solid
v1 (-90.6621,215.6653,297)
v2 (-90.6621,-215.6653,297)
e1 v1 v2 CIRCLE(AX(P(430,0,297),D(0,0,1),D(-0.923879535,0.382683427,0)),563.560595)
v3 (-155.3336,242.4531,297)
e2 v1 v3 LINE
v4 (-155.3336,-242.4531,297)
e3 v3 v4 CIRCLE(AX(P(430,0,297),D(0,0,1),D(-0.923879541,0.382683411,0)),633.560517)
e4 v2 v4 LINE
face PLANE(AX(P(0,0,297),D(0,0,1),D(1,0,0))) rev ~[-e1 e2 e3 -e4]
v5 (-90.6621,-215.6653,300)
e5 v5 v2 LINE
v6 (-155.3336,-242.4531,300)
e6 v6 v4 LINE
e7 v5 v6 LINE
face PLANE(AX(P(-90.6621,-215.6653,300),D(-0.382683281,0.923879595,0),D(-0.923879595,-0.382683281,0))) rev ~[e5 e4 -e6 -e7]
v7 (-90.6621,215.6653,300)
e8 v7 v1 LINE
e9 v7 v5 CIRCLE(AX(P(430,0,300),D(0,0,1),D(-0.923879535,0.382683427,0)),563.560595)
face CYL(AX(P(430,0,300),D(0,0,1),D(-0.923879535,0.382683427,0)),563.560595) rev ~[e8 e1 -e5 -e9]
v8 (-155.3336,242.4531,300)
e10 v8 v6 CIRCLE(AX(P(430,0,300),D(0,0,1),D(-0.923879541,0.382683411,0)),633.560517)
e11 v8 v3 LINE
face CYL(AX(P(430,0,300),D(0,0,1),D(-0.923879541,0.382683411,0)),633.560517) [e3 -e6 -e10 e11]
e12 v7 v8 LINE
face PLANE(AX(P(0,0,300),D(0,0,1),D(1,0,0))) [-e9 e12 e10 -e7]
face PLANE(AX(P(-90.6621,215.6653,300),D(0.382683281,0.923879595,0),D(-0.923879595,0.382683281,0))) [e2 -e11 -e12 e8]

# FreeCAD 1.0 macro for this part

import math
import FreeCAD as App
import Part
import Sketcher

V = App.Vector
Q = App.Units.Quantity

doc = App.newDocument("Part")
params = doc.addObject("Spreadsheet::Sheet", "Params")
for row, (alias, value) in enumerate([
    ("sketch1_length", "70 mm"),
    ("pad1_length", "3 mm"),
], start=1):
    params.set(f"A{row}", alias)
    params.set(f"B{row}", "=" + value)
    params.setAlias(f"B{row}", alias)

body = doc.addObject("PartDesign::Body", "Body")

# Sketch on XY plane
sketch1 = doc.addObject("Sketcher::SketchObject", "Sketch")
body.addObject(sketch1)
sketch1.AttachmentSupport = (doc.XY_Plane, [""])
sketch1.MapMode = "FlatFace"
sketch1.AttachmentOffset = App.Placement(V(0, 0, 300), App.Rotation())
sketch1.addGeometry(Part.ArcOfCircle(Part.Circle(V(430, 0, 0), V(0, 0, 1), 564), math.radians(158), math.radians(202)), False)
sketch1.addGeometry(Part.LineSegment(V(-91, 216, 0), V(-155, 242, 0)), False)
sketch1.addGeometry(Part.ArcOfCircle(Part.Circle(V(430, 0, 0), V(0, 0, 1), 634), math.radians(158), math.radians(202)), False)
sketch1.addGeometry(Part.LineSegment(V(-155, -242, 0), V(-91, -216, 0)), False)
sketch1.addConstraint(Sketcher.Constraint("Coincident", 0, 1, 1, 1))
sketch1.addConstraint(Sketcher.Constraint("Coincident", 1, 2, 2, 1))
sketch1.addConstraint(Sketcher.Constraint("Coincident", 2, 2, 3, 1))
sketch1.addConstraint(Sketcher.Constraint("Coincident", 3, 2, 0, 2))
sketch1.addConstraint(Sketcher.Constraint("Coincident", 2, 3, 0, 3))
sketch1.addConstraint(Sketcher.Constraint("PointOnObject", 0, 3, -1))
sketch1.addConstraint(Sketcher.Constraint("Vertical", 1, 2, 2, 2))
sketch1.addConstraint(Sketcher.Constraint("Vertical", 0, 1, 3, 2))
sketch1.addConstraint(Sketcher.Constraint("Distance", 1, 70.0))
sketch1.addConstraint(Sketcher.Constraint("DistanceX", -1, 1, 0, 3, 430.0))
sketch1.addConstraint(Sketcher.Constraint("Angle", 1, Q("157.5 deg")))
sketch1.addConstraint(Sketcher.Constraint("Radius", 0, 563.5606))
sketch1.addConstraint(Sketcher.Constraint("DistanceY", -1, 1, 1, 2, 242.453))
sketch1.setExpression("Constraints[8]", "Params.sketch1_length")
pad1 = doc.addObject("PartDesign::Pad", "Pad")
body.addObject(pad1)
pad1.Profile = sketch1
pad1.setExpression("Length", "Params.pad1_length")
pad1.Reversed = True

doc.recompute()
